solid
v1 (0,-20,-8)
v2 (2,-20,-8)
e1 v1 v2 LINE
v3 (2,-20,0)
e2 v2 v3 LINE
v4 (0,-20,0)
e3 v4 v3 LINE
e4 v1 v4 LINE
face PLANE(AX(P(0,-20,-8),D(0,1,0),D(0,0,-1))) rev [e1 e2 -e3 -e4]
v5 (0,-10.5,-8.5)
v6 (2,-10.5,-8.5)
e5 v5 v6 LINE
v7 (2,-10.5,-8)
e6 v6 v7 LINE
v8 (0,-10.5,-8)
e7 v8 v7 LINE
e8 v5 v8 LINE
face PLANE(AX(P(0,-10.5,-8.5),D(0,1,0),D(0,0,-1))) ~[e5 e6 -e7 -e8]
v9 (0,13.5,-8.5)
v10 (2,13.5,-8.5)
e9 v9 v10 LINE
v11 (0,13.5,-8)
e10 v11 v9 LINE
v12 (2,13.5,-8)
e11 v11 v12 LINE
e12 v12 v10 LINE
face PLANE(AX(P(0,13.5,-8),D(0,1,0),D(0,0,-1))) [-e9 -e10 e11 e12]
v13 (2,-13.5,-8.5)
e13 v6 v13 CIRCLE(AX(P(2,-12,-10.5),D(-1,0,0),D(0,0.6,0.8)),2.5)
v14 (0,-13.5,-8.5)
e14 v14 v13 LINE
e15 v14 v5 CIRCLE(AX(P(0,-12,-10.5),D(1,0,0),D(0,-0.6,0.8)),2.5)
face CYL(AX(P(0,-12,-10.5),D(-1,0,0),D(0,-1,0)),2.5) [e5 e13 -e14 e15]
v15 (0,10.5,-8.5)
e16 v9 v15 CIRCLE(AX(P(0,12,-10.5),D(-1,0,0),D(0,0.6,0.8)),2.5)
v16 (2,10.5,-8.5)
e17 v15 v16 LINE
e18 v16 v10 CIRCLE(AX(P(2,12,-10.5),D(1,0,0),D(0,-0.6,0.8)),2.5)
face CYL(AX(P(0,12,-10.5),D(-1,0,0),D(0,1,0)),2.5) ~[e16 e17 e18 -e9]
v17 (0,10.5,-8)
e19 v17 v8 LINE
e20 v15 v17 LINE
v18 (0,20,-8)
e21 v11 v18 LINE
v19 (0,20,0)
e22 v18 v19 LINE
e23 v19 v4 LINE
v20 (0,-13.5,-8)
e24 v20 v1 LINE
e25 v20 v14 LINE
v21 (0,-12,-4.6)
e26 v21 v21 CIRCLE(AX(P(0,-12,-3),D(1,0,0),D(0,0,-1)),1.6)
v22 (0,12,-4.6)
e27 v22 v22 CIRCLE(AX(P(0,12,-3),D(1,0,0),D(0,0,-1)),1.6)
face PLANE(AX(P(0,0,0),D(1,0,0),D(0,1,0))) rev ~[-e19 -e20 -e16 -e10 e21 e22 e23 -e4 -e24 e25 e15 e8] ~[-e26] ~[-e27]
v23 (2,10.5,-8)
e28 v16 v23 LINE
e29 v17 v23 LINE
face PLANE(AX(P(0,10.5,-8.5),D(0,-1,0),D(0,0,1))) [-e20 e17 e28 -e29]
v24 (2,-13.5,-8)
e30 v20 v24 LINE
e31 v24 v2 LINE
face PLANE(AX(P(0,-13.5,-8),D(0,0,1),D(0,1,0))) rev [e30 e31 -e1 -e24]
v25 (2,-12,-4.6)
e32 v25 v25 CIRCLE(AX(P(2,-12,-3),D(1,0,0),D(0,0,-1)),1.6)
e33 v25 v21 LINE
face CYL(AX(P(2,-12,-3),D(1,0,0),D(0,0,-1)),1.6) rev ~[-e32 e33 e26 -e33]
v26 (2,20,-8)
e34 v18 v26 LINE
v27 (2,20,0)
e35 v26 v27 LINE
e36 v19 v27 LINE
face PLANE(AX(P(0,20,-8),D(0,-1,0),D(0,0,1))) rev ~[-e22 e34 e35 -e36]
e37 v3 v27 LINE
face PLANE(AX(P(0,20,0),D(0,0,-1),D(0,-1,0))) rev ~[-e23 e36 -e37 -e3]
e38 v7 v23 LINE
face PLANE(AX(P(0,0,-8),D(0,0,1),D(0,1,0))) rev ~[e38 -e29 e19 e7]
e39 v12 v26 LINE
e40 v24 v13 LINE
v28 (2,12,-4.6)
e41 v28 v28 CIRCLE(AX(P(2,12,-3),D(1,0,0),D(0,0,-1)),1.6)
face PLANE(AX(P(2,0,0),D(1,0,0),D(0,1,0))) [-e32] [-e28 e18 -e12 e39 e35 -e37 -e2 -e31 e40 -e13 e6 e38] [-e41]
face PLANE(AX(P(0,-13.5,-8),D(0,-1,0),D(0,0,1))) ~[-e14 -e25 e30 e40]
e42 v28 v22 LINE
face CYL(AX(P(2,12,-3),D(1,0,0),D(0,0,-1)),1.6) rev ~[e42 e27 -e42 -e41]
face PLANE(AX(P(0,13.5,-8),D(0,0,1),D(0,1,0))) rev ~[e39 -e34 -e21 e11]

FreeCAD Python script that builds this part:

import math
import FreeCAD as App
import Part
import Sketcher
from FreeCAD import Vector

doc = App.newDocument("Part")
body = doc.addObject("PartDesign::Body", "Body")

sketch1 = body.newObject("Sketcher::SketchObject", "Sketch")
sketch1.AttachmentSupport = (doc.getObject("YZ_Plane"), [""])
sketch1.MapMode = "FlatFace"
sketch1.addGeometry([
    Part.LineSegment(Vector(20, -8, 0), Vector(20, 0, 0)),
    Part.LineSegment(Vector(20, 0, 0), Vector(0, 0, 0)),
    Part.LineSegment(Vector(0, 0, 0), Vector(0, -8, 0)),
    Part.LineSegment(Vector(0, -8, 0), Vector(10.5, -8, 0)),
    Part.LineSegment(Vector(10.5, -8, 0), Vector(10.5, -8.5, 0)),
    Part.ArcOfCircle(Part.Circle(Vector(12, -10.5, 0), Vector(0, 0, 1), 2.5), math.radians(127), math.radians(413)),
    Part.LineSegment(Vector(13.5, -8.5, 0), Vector(13.5, -8, 0)),
    Part.LineSegment(Vector(13.5, -8, 0), Vector(20, -8, 0)),
], False)
sketch1.addConstraint([
    Sketcher.Constraint("Coincident", 0, 2, 1, 1),
    Sketcher.Constraint("Coincident", 1, 2, 2, 1),
    Sketcher.Constraint("Coincident", 2, 2, 3, 1),
    Sketcher.Constraint("Coincident", 3, 2, 4, 1),
    Sketcher.Constraint("Coincident", 4, 2, 5, 1),
    Sketcher.Constraint("Coincident", 5, 2, 6, 1),
    Sketcher.Constraint("Coincident", 6, 2, 7, 1),
    Sketcher.Constraint("Coincident", 7, 2, 0, 1),
    Sketcher.Constraint("Vertical", 0),
    Sketcher.Constraint("Horizontal", 1),
    Sketcher.Constraint("Vertical", 2),
    Sketcher.Constraint("Horizontal", 3),
    Sketcher.Constraint("Vertical", 4),
    Sketcher.Constraint("Vertical", 6),
    Sketcher.Constraint("Horizontal", 7),
    Sketcher.Constraint("Coincident", 1, 2, -1, 1),
    Sketcher.Constraint("Horizontal", 4, 2, 5, 2),
    Sketcher.Constraint("Horizontal", 3, 2, 6, 2),
    Sketcher.Constraint("Radius", 5, 2.5),
    Sketcher.Constraint("DistanceX", 1, 2, 1, 1, 20.0),
    Sketcher.Constraint("DistanceY", 0, 1, 0, 2, 8.0),
    Sketcher.Constraint("DistanceX", -1, 1, 5, 3, 12.0),
    Sketcher.Constraint("DistanceX", 4, 2, 5, 2, 3.0),
    Sketcher.Constraint("DistanceY", 4, 2, 4, 1, 0.5),
])
pad1 = body.newObject("PartDesign::Pad", "Pad")
pad1.Profile = sketch1
pad1.Length = 2
doc.recompute()

mirrored = body.newObject("PartDesign::Mirrored", "Mirrored")
mirrored.TransformMode = "Transform body"
mirrored.MirrorPlane = (doc.getObject("XZ_Plane"), [""])
body.Tip = mirrored

sketch2 = body.newObject("Sketcher::SketchObject", "Sketch001")
sketch2.AttachmentSupport = (doc.getObject("YZ_Plane"), [""])
sketch2.MapMode = "FlatFace"
sketch2.AttachmentOffset = App.Placement(Vector(0, 0, 2), App.Rotation())
sketch2.addGeometry([
    Part.Circle(Vector(12, -3, 0), Vector(0, 0, 1), 1.6),
    Part.Circle(Vector(-12, -3, 0), Vector(0, 0, 1), 1.6),
], False)
sketch2.addConstraint([
    Sketcher.Constraint("Equal", 0, 1),
    Sketcher.Constraint("Symmetric", 0, 3, 1, 3, -2),
    Sketcher.Constraint("Diameter", 0, 3.2),
    Sketcher.Constraint("DistanceY", 0, 3, -1, 1, 3.0),
    Sketcher.Constraint("DistanceX", -1, 1, 0, 3, 12.0),
])
pocket1 = body.newObject("PartDesign::Pocket", "Pocket")
pocket1.Profile = sketch2
pocket1.Length = 2

doc.recompute()
